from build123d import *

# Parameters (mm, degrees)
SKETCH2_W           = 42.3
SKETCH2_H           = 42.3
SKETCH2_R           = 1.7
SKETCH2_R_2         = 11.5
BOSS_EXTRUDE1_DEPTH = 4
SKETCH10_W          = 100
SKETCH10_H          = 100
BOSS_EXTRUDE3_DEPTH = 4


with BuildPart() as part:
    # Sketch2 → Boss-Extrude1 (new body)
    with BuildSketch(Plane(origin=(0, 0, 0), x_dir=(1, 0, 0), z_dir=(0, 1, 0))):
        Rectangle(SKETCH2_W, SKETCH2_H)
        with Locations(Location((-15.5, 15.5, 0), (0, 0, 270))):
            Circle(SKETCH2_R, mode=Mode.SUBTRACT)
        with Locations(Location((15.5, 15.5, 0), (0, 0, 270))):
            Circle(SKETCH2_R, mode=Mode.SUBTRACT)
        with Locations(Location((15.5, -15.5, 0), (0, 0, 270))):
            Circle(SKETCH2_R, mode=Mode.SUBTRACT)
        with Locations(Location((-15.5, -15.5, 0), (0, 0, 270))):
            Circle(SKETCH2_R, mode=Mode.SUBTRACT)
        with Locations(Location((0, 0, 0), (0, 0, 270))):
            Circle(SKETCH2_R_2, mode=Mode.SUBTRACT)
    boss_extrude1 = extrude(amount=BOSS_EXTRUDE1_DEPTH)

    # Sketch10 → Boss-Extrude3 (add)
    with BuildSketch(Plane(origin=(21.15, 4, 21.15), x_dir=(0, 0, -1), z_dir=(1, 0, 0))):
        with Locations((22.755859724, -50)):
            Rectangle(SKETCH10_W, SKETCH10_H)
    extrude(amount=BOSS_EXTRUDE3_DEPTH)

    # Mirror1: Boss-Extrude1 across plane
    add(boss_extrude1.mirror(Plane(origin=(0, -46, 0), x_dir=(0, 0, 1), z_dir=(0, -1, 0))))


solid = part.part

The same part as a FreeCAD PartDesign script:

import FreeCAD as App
import Part
import Sketcher

V = App.Vector
Q = App.Units.Quantity


def add_polygon(sketch, points):
    """Adds a closed chain of lines whose ends are joined by coincident constraints."""
    first, n = sketch.GeometryCount, len(points)
    for a, b in zip(points, points[1:] + points[:1]):
        sketch.addGeometry(Part.LineSegment(App.Vector(*a, 0), App.Vector(*b, 0)), False)
    for i in range(n):
        sketch.addConstraint(Sketcher.Constraint("Coincident", first + i, 2, first + (i + 1) % n, 1))

doc = App.newDocument("Part")
body = doc.addObject("PartDesign::Body", "Body")

# Sketch on XZ plane
sketch1 = body.newObject("Sketcher::SketchObject", "Sketch")
sketch1.AttachmentSupport = (doc.getObject("XZ_Plane"), [""])
sketch1.MapMode = "FlatFace"
add_polygon(sketch1, [(-21.1, -21.1), (-21.1, 21.1), (21.1, 21.1), (21.1, -21.1)])  # lines 0-3
sketch1.addGeometry(Part.Circle(V(-15.5, 15.5, 0), V(0, 0, 1), 1.7), False)  # 4
sketch1.addGeometry(Part.Circle(V(15.5, 15.5, 0), V(0, 0, 1), 1.7), False)  # 5
sketch1.addGeometry(Part.Circle(V(-15.5, -15.5, 0), V(0, 0, 1), 1.7), False)  # 6
sketch1.addGeometry(Part.Circle(V(0, 0, 0), V(0, 0, 1), 11.5), False)  # 7
sketch1.addGeometry(Part.Circle(V(15.5, -15.5, 0), V(0, 0, 1), 1.7), False)  # 8
sketch1.addConstraint([
    Sketcher.Constraint("Vertical", 0),
    Sketcher.Constraint("Horizontal", 1),
    Sketcher.Constraint("Vertical", 2),
    Sketcher.Constraint("Horizontal", 3),
    Sketcher.Constraint("Coincident", 7, 3, -1, 1),
    Sketcher.Constraint("Equal", 4, 5),
    Sketcher.Constraint("Equal", 5, 6),
    Sketcher.Constraint("Equal", 6, 8),
    Sketcher.Constraint("Symmetric", 5, 3, 6, 3, -1, 1),
    Sketcher.Constraint("Symmetric", 4, 3, 8, 3, -1, 1),
    Sketcher.Constraint("Symmetric", 0, 2, 2, 2, -1, 1),
    Sketcher.Constraint("Symmetric", 4, 3, 5, 3, -2),
    Sketcher.Constraint("Equal", 3, 0),
    Sketcher.Constraint("Diameter", 7, Q("23 mm")),
    Sketcher.Constraint("Diameter", 4, Q("3.4 mm")),
    Sketcher.Constraint("DistanceX", 1, 1, 1, 2, Q("42.3 mm")),
    Sketcher.Constraint("DistanceX", 4, 3, 5, 3, Q("31 mm")),
    Sketcher.Constraint("DistanceY", 6, 3, 4, 3, Q("31 mm")),
])
pad1 = body.newObject("PartDesign::Pad", "Pad")
pad1.Profile = sketch1
pad1.Length = 4
pad1.Reversed = True

# Sketch on YZ plane
sketch2 = body.newObject("Sketcher::SketchObject", "Sketch001")
sketch2.AttachmentSupport = (doc.getObject("YZ_Plane"), [""])
sketch2.MapMode = "FlatFace"
sketch2.AttachmentOffset = App.Placement(V(0, 0, 21.15), App.Rotation())
add_polygon(sketch2, [(4, 48), (-96, 48), (-96, -52), (4, -52)])  # lines 0-3
sketch2.addConstraint([
    Sketcher.Constraint("Horizontal", 0),
    Sketcher.Constraint("Vertical", 1),
    Sketcher.Constraint("Horizontal", 2),
    Sketcher.Constraint("Vertical", 3),
    Sketcher.Constraint("Equal", 2, 1),
    Sketcher.Constraint("DistanceX", 0, 2, 0, 1, Q("100 mm")),
    Sketcher.Constraint("DistanceX", 0, 2, -1, 1, Q("96 mm")),
    Sketcher.Constraint("DistanceY", -1, 1, 0, 2, Q("48.39414 mm")),
])
pad2 = body.newObject("PartDesign::Pad", "Pad001")
pad2.Profile = sketch2
pad2.Length = 4
doc.recompute()

datumplane = body.newObject("PartDesign::Plane", "DatumPlane")
datumplane.AttachmentSupport = (doc.getObject("XZ_Plane"), [""])
datumplane.MapMode = "FlatFace"
datumplane.AttachmentOffset = App.Placement(V(0, 0, 46), App.Rotation())
mirrored = body.newObject("PartDesign::Mirrored", "Mirrored")
mirrored.Originals = [pad1]
mirrored.MirrorPlane = (datumplane, [""])
body.Tip = mirrored

doc.recompute()
